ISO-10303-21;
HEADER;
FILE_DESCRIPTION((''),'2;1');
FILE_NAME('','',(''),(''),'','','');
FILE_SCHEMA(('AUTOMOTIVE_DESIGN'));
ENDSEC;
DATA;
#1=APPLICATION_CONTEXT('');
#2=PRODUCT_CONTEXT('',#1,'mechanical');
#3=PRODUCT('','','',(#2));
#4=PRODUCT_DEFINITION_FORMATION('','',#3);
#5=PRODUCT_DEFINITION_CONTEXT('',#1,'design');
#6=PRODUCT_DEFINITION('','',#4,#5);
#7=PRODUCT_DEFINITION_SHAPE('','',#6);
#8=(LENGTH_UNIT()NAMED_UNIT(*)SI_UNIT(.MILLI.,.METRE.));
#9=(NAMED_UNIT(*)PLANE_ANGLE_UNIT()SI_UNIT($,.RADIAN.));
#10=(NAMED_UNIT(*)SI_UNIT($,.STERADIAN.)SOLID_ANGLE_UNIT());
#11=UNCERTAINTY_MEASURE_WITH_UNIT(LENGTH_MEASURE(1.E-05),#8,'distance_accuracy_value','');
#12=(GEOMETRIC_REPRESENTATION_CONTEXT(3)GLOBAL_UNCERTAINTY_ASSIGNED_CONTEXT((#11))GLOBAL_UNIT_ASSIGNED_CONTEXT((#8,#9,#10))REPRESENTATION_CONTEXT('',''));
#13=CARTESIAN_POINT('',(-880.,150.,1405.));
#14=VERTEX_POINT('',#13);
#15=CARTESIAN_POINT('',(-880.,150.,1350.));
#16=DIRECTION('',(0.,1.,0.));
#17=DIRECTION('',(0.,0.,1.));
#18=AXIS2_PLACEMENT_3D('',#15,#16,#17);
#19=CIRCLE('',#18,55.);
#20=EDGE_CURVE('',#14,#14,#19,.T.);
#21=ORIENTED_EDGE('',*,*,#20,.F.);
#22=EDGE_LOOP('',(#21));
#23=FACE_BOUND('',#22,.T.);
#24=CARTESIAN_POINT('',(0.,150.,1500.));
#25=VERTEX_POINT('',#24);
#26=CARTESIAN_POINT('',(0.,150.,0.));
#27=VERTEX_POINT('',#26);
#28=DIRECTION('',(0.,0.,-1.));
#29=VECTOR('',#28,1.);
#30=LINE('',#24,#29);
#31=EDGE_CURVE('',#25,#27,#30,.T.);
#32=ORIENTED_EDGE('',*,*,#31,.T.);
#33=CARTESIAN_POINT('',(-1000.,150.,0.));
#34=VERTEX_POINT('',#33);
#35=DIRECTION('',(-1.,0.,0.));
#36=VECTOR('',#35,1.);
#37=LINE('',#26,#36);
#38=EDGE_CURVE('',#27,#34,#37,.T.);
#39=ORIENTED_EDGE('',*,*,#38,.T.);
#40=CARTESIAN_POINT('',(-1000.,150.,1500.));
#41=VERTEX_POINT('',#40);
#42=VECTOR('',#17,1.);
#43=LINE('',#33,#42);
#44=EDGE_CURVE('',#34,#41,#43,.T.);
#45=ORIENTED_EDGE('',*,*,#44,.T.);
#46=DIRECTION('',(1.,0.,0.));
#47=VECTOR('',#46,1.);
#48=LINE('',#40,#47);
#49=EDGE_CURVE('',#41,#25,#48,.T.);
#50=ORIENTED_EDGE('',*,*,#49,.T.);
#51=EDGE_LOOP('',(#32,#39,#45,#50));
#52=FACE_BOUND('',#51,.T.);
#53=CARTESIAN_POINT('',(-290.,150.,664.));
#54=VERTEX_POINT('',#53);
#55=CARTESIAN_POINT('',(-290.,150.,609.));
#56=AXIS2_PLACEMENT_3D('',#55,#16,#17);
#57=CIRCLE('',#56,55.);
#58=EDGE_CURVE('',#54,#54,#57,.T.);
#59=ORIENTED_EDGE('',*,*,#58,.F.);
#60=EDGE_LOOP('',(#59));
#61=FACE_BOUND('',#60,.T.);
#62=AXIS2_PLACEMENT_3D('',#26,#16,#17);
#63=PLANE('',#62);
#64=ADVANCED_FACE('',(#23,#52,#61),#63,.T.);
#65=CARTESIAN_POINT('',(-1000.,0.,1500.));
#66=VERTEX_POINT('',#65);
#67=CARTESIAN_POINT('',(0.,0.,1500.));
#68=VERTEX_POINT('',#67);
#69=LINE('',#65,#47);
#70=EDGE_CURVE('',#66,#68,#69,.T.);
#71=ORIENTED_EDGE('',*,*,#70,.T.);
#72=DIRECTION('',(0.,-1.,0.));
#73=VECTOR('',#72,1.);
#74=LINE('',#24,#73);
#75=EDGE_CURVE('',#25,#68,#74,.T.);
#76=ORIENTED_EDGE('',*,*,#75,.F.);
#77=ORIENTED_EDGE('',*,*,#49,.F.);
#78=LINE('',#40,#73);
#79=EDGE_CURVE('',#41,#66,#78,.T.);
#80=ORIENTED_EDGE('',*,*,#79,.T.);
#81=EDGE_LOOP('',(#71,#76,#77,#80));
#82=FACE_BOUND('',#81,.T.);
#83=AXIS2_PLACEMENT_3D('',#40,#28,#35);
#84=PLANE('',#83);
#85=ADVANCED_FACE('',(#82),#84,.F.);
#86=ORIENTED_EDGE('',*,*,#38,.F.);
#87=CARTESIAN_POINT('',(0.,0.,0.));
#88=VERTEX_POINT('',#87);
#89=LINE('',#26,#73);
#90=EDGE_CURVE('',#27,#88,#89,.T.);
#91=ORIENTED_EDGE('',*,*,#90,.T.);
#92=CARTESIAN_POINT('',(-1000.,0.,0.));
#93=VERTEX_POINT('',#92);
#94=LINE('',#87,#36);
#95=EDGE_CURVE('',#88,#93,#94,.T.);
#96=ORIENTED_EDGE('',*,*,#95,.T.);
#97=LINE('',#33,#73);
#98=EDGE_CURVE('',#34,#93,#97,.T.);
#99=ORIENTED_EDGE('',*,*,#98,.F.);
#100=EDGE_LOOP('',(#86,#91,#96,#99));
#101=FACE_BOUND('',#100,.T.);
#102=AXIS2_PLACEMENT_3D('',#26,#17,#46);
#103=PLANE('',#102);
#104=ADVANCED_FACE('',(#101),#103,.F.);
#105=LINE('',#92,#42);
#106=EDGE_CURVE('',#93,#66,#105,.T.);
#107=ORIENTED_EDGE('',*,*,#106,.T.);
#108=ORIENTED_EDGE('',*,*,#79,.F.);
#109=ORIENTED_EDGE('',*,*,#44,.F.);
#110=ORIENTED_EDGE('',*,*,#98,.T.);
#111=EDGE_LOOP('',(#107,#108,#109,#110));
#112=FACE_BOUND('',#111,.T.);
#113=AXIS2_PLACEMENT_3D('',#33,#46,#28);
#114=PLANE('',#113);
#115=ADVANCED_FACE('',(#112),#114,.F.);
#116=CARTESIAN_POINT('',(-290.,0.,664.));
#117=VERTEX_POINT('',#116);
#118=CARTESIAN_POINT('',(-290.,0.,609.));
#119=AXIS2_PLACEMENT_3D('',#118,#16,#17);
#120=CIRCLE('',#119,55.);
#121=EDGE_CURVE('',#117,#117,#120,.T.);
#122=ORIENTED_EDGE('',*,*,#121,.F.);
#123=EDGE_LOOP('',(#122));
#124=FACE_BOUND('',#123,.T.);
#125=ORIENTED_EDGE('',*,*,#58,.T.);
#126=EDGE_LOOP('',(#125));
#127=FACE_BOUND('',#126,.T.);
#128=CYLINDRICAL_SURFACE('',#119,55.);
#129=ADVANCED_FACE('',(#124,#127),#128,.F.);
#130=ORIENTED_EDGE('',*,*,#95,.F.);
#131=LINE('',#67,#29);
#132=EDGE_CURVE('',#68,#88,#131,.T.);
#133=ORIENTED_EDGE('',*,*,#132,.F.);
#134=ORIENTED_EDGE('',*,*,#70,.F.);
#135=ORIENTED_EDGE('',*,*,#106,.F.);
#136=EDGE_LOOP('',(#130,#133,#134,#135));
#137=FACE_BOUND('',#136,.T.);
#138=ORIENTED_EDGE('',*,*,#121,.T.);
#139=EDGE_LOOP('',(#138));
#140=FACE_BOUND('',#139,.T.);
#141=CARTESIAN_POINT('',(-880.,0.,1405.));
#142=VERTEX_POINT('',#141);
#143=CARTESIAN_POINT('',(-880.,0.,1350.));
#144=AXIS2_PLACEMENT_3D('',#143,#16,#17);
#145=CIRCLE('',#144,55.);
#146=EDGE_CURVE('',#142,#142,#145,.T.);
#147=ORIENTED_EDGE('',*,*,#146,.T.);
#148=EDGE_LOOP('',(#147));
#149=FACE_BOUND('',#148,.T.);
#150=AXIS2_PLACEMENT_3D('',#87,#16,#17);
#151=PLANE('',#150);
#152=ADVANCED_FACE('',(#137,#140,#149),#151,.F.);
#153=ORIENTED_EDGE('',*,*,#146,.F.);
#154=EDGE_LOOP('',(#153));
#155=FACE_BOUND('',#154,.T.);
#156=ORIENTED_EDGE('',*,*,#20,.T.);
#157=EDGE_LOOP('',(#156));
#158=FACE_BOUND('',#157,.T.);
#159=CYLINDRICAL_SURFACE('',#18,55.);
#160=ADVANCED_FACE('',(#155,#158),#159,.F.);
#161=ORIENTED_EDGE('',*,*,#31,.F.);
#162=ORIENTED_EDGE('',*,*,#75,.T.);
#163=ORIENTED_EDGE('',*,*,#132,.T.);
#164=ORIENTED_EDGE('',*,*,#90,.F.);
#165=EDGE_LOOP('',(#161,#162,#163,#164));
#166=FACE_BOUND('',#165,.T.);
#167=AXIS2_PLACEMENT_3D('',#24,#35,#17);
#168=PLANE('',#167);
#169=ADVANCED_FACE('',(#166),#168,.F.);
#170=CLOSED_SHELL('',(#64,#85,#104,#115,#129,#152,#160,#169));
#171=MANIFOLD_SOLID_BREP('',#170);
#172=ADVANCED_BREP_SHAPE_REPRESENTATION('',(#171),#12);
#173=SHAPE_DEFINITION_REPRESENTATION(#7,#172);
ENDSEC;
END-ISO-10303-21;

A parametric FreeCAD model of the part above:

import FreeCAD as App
import Part
import Sketcher
Q = App.Units.Quantity


def add_polygon(sketch, points):
    """Adds a closed chain of lines whose ends are joined by coincident constraints."""
    first, n = sketch.GeometryCount, len(points)
    for a, b in zip(points, points[1:] + points[:1]):
        sketch.addGeometry(Part.LineSegment(App.Vector(*a, 0), App.Vector(*b, 0)), False)
    for i in range(n):
        sketch.addConstraint(Sketcher.Constraint("Coincident", first + i, 2, first + (i + 1) % n, 1))

doc = App.newDocument("Part")
body = doc.addObject("PartDesign::Body", "Body")

sketch1 = body.newObject("Sketcher::SketchObject", "Sketch")
sketch1.AttachmentSupport = (doc.getObject("XZ_Plane"), [""])
sketch1.MapMode = "FlatFace"
add_polygon(sketch1, [(0, 1500), (0, 0), (-1000, 0), (-1000, 1500)])
sketch1.addConstraint(Sketcher.Constraint("Vertical", 0))
sketch1.addConstraint(Sketcher.Constraint("Horizontal", 1))
sketch1.addConstraint(Sketcher.Constraint("Vertical", 2))
sketch1.addConstraint(Sketcher.Constraint("Horizontal", 3))
sketch1.addConstraint(Sketcher.Constraint("Coincident", 0, 2, -1, 1))
sketch1.addConstraint(Sketcher.Constraint("DistanceX", 1, 2, 1, 1, Q("1000 mm")))
sketch1.addConstraint(Sketcher.Constraint("DistanceY", 0, 2, 0, 1, Q("1500 mm")))
pad1 = body.newObject("PartDesign::Pad", "Pad")
pad1.Profile = sketch1
pad1.Length = 150
pad1.Reversed = True

sketch2 = body.newObject("Sketcher::SketchObject", "Sketch001")
sketch2.AttachmentSupport = (doc.getObject("XZ_Plane"), [""])
sketch2.MapMode = "FlatFace"
sketch2.AttachmentOffset = App.Placement(App.Vector(0, 0, -150), App.Rotation())
sketch2.addGeometry(Part.Circle(App.Vector(-290, 609, 0), App.Vector(0, 0, 1), 55), False)
sketch2.addConstraint(Sketcher.Constraint("Diameter", 0, Q("110 mm")))
sketch2.addConstraint(Sketcher.Constraint("DistanceX", 0, 3, -1, 1, Q("290 mm")))
sketch2.addConstraint(Sketcher.Constraint("DistanceY", -1, 1, 0, 3, Q("609 mm")))
pocket1 = body.newObject("PartDesign::Pocket", "Pocket")
pocket1.Profile = sketch2
pocket1.Type = "ThroughAll"
pocket1.Reversed = True

sketch3 = body.newObject("Sketcher::SketchObject", "Sketch002")
sketch3.AttachmentSupport = (doc.getObject("XZ_Plane"), [""])
sketch3.MapMode = "FlatFace"
sketch3.AttachmentOffset = App.Placement(App.Vector(0, 0, -150), App.Rotation())
sketch3.addGeometry(Part.Circle(App.Vector(-880, 1350, 0), App.Vector(0, 0, 1), 55), False)
sketch3.addConstraint(Sketcher.Constraint("Diameter", 0, Q("110 mm")))
sketch3.addConstraint(Sketcher.Constraint("DistanceX", 0, 3, -1, 1, Q("880 mm")))
sketch3.addConstraint(Sketcher.Constraint("DistanceY", -1, 1, 0, 3, Q("1350 mm")))
doc.recompute()
hole = body.newObject("PartDesign::Hole", "Hole")
hole.Profile = sketch3
hole.ThreadType = "None"
hole.Diameter = 110
hole.DepthType = "ThroughAll"
hole.Reversed = True

doc.recompute()
